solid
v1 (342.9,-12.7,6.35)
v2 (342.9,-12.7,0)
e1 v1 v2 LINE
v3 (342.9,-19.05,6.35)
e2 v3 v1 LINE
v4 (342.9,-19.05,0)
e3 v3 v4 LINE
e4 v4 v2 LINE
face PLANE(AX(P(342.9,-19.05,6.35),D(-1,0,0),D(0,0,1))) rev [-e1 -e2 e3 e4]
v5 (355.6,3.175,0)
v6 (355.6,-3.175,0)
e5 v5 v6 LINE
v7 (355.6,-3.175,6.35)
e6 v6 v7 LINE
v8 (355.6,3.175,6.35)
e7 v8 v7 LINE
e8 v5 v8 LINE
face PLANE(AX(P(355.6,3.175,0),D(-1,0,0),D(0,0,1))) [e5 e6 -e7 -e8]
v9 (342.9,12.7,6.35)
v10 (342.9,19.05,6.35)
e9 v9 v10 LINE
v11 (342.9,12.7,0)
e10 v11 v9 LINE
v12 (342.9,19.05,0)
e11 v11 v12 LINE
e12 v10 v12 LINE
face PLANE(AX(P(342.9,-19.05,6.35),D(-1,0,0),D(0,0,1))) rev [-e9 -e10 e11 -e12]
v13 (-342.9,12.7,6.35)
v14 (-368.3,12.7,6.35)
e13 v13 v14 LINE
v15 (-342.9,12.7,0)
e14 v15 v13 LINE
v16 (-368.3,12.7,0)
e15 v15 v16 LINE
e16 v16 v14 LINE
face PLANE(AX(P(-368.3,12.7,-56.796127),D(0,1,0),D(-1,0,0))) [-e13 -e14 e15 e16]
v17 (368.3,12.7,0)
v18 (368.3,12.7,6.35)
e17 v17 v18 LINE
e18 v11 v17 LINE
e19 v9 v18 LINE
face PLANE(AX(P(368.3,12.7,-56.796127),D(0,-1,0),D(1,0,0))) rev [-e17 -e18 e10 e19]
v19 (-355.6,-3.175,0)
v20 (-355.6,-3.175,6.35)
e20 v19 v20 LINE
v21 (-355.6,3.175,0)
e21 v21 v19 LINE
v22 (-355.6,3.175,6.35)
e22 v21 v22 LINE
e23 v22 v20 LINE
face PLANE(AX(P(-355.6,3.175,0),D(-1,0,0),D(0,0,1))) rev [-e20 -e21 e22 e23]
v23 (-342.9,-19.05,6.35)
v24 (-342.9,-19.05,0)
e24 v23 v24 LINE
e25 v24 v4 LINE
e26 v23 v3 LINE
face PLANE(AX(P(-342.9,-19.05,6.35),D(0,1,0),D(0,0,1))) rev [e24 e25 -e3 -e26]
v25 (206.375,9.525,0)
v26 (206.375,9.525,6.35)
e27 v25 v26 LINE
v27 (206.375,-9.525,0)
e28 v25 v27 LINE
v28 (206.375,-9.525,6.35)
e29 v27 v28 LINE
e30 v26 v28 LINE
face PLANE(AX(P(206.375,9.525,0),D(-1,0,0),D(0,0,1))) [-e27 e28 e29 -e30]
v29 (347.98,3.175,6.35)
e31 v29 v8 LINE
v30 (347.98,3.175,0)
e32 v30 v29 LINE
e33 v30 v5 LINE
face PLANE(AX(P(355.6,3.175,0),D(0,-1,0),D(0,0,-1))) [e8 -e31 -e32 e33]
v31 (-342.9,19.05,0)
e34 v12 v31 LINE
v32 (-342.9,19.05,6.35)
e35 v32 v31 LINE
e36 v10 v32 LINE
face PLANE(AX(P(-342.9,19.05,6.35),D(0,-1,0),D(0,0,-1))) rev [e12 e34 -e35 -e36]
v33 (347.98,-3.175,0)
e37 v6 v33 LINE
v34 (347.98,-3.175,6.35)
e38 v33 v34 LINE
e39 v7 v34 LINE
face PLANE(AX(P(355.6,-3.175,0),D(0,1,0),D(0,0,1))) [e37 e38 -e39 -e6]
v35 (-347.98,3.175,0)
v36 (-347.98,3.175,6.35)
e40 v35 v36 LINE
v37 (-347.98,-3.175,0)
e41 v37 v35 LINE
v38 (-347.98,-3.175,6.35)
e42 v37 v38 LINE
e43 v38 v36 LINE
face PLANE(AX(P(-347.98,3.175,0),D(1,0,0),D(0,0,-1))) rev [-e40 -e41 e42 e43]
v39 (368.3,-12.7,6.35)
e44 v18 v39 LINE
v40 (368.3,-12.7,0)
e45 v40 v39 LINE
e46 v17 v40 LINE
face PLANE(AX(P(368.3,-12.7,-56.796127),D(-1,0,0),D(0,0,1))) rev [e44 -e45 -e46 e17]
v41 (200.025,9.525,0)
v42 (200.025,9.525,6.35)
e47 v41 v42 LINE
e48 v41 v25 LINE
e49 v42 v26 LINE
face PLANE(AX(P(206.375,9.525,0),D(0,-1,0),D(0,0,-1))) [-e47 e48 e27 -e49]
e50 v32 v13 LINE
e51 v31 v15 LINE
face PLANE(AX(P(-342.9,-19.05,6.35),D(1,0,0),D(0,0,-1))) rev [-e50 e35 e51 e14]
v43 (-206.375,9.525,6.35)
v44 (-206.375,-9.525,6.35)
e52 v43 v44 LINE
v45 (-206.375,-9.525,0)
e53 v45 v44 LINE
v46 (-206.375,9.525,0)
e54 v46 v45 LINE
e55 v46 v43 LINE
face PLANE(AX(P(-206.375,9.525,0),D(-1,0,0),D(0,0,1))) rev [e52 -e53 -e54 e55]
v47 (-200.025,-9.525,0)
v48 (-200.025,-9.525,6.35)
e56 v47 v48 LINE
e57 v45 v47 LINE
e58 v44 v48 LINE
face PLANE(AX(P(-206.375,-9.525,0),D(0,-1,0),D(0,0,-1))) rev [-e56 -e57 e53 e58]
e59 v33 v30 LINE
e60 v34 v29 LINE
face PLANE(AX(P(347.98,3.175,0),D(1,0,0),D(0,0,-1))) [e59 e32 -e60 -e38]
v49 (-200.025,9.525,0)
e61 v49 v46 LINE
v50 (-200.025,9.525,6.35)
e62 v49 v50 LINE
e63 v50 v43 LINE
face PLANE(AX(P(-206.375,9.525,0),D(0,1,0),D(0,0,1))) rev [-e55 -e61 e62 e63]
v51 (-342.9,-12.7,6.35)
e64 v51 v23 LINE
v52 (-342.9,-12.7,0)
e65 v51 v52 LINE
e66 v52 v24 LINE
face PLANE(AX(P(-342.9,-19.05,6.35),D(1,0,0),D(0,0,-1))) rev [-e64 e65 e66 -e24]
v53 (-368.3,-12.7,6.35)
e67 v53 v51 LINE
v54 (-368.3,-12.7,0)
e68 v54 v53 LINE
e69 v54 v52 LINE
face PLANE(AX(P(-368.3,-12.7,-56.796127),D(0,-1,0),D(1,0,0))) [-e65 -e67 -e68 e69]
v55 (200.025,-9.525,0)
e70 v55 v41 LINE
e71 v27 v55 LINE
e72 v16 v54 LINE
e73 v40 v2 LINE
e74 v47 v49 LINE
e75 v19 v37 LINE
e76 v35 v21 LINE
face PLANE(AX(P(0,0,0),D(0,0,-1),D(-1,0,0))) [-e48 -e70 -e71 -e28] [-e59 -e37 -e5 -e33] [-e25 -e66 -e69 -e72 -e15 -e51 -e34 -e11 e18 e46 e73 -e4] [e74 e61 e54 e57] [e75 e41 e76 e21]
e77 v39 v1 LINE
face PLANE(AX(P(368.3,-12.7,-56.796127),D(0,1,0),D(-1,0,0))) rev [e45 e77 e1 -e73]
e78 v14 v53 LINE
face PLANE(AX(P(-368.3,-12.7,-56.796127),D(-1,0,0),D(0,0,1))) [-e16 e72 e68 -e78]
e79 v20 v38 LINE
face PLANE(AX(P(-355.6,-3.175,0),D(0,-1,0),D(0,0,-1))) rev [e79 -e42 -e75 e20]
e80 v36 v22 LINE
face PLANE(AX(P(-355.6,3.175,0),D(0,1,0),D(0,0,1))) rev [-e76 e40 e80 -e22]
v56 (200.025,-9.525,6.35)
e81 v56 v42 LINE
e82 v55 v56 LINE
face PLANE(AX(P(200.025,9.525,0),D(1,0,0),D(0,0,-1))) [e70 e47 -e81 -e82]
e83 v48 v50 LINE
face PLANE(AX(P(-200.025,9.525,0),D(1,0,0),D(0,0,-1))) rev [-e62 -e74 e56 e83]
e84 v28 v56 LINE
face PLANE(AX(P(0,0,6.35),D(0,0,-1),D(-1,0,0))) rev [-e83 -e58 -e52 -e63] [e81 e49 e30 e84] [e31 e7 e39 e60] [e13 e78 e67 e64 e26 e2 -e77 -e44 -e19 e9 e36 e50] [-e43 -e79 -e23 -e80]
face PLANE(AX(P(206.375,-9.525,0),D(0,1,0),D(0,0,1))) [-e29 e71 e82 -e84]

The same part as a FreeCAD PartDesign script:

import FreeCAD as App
import Part
import Sketcher
from FreeCAD import Vector
Q = App.Units.Quantity


def add_polygon(sketch, points):
    """Adds a closed chain of lines whose ends are joined by coincident constraints."""
    first, n = sketch.GeometryCount, len(points)
    for a, b in zip(points, points[1:] + points[:1]):
        sketch.addGeometry(Part.LineSegment(App.Vector(*a, 0), App.Vector(*b, 0)), False)
    for i in range(n):
        sketch.addConstraint(Sketcher.Constraint("Coincident", first + i, 2, first + (i + 1) % n, 1))

doc = App.newDocument("Part")
body = doc.addObject("PartDesign::Body", "Body")

# Sketch on XY plane
sketch1 = body.newObject("Sketcher::SketchObject", "Sketch")
sketch1.AttachmentSupport = (doc.getObject("XY_Plane"), [""])
sketch1.MapMode = "FlatFace"
add_polygon(sketch1, [(-343, 19), (-343, -19), (343, -19), (343, 19)])  # lines 0-3
sketch1.addConstraint(Sketcher.Constraint("Vertical", 0))
sketch1.addConstraint(Sketcher.Constraint("Horizontal", 1))
sketch1.addConstraint(Sketcher.Constraint("Vertical", 2))
sketch1.addConstraint(Sketcher.Constraint("Horizontal", 3))
sketch1.addConstraint(Sketcher.Constraint("Symmetric", 0, 2, 2, 2, -1, 1))
sketch1.addConstraint(Sketcher.Constraint("DistanceX", 1, 1, 1, 2, Q("27 in")))
sketch1.addConstraint(Sketcher.Constraint("DistanceY", 0, 2, 0, 1, Q("1.5 in")))
pad1 = body.newObject("PartDesign::Pad", "Pad")
pad1.Profile = sketch1
pad1.Length = Q("0.25 in")

# Sketch on XY plane
sketch2 = body.newObject("Sketcher::SketchObject", "Sketch001")
sketch2.AttachmentSupport = (doc.getObject("XY_Plane"), [""])
sketch2.MapMode = "FlatFace"
sketch2.AttachmentOffset = App.Placement(Vector(0, 0, 0.25 * 25.4), App.Rotation())
add_polygon(sketch2, [(-368, 13), (-368, -13), (-318, -13), (-318, 13)])  # lines 0-3
sketch2.addConstraint(Sketcher.Constraint("Vertical", 0))
sketch2.addConstraint(Sketcher.Constraint("Horizontal", 1))
sketch2.addConstraint(Sketcher.Constraint("Vertical", 2))
sketch2.addConstraint(Sketcher.Constraint("Horizontal", 3))
sketch2.addConstraint(Sketcher.Constraint("DistanceX", 1, 1, 1, 2, Q("2 in")))
sketch2.addConstraint(Sketcher.Constraint("DistanceY", 0, 2, 0, 1, Q("1 in")))
sketch2.addConstraint(Sketcher.Constraint("DistanceX", 0, 2, -1, 1, Q("14.5 in")))
sketch2.addConstraint(Sketcher.Constraint("DistanceY", 0, 2, -1, 1, Q("0.5 in")))
pad2 = body.newObject("PartDesign::Pad", "Pad001")
pad2.Profile = sketch2
pad2.Length = Q("0.25 in")
pad2.Reversed = True

# Sketch on XY plane
sketch3 = body.newObject("Sketcher::SketchObject", "Sketch002")
sketch3.AttachmentSupport = (doc.getObject("XY_Plane"), [""])
sketch3.MapMode = "FlatFace"
sketch3.AttachmentOffset = App.Placement(Vector(0, 0, 0.25 * 25.4), App.Rotation())
add_polygon(sketch3, [(-356, 3), (-356, -3), (-348, -3), (-348, 3)])  # lines 0-3
sketch3.addConstraint(Sketcher.Constraint("Vertical", 0))
sketch3.addConstraint(Sketcher.Constraint("Horizontal", 1))
sketch3.addConstraint(Sketcher.Constraint("Vertical", 2))
sketch3.addConstraint(Sketcher.Constraint("Horizontal", 3))
sketch3.addConstraint(Sketcher.Constraint("DistanceX", 1, 1, 1, 2, Q("0.3 in")))
sketch3.addConstraint(Sketcher.Constraint("DistanceX", 0, 2, -1, 1, Q("14 in")))
sketch3.addConstraint(Sketcher.Constraint("DistanceY", 0, 2, 0, 1, Q("0.25 in")))
sketch3.addConstraint(Sketcher.Constraint("DistanceY", 0, 2, -1, 1, Q("0.125 in")))
pocket1 = body.newObject("PartDesign::Pocket", "Pocket")
pocket1.Profile = sketch3
pocket1.Type = "ThroughAll"
doc.recompute()

mirrored = body.newObject("PartDesign::Mirrored", "Mirrored")
mirrored.Originals = [pad2, pocket1]
mirrored.MirrorPlane = (doc.getObject("YZ_Plane"), [""])
body.Tip = mirrored

# Sketch on XY plane
sketch4 = body.newObject("Sketcher::SketchObject", "Sketch003")
sketch4.AttachmentSupport = (doc.getObject("XY_Plane"), [""])
sketch4.MapMode = "FlatFace"
sketch4.AttachmentOffset = App.Placement(Vector(0, 0, 0.25 * 25.4), App.Rotation())
add_polygon(sketch4, [(-206, 10), (-206, -10), (-200, -10), (-200, 10)])  # lines 0-3
sketch4.addConstraint(Sketcher.Constraint("Vertical", 0))
sketch4.addConstraint(Sketcher.Constraint("Horizontal", 1))
sketch4.addConstraint(Sketcher.Constraint("Vertical", 2))
sketch4.addConstraint(Sketcher.Constraint("Horizontal", 3))
sketch4.addConstraint(Sketcher.Constraint("DistanceX", 1, 1, 1, 2, Q("0.25 in")))
sketch4.addConstraint(Sketcher.Constraint("DistanceY", 0, 2, 0, 1, Q("0.75 in")))
sketch4.addConstraint(Sketcher.Constraint("DistanceX", 0, 2, -1, 1, Q("8.125 in")))
sketch4.addConstraint(Sketcher.Constraint("DistanceY", 0, 2, -1, 1, Q("0.375 in")))
pocket2 = body.newObject("PartDesign::Pocket", "Pocket001")
pocket2.Profile = sketch4
pocket2.Type = "ThroughAll"
doc.recompute()

mirrored2 = body.newObject("PartDesign::Mirrored", "Mirrored001")
mirrored2.Originals = [pocket2]
mirrored2.MirrorPlane = (doc.getObject("YZ_Plane"), [""])
body.Tip = mirrored2

doc.recompute()
